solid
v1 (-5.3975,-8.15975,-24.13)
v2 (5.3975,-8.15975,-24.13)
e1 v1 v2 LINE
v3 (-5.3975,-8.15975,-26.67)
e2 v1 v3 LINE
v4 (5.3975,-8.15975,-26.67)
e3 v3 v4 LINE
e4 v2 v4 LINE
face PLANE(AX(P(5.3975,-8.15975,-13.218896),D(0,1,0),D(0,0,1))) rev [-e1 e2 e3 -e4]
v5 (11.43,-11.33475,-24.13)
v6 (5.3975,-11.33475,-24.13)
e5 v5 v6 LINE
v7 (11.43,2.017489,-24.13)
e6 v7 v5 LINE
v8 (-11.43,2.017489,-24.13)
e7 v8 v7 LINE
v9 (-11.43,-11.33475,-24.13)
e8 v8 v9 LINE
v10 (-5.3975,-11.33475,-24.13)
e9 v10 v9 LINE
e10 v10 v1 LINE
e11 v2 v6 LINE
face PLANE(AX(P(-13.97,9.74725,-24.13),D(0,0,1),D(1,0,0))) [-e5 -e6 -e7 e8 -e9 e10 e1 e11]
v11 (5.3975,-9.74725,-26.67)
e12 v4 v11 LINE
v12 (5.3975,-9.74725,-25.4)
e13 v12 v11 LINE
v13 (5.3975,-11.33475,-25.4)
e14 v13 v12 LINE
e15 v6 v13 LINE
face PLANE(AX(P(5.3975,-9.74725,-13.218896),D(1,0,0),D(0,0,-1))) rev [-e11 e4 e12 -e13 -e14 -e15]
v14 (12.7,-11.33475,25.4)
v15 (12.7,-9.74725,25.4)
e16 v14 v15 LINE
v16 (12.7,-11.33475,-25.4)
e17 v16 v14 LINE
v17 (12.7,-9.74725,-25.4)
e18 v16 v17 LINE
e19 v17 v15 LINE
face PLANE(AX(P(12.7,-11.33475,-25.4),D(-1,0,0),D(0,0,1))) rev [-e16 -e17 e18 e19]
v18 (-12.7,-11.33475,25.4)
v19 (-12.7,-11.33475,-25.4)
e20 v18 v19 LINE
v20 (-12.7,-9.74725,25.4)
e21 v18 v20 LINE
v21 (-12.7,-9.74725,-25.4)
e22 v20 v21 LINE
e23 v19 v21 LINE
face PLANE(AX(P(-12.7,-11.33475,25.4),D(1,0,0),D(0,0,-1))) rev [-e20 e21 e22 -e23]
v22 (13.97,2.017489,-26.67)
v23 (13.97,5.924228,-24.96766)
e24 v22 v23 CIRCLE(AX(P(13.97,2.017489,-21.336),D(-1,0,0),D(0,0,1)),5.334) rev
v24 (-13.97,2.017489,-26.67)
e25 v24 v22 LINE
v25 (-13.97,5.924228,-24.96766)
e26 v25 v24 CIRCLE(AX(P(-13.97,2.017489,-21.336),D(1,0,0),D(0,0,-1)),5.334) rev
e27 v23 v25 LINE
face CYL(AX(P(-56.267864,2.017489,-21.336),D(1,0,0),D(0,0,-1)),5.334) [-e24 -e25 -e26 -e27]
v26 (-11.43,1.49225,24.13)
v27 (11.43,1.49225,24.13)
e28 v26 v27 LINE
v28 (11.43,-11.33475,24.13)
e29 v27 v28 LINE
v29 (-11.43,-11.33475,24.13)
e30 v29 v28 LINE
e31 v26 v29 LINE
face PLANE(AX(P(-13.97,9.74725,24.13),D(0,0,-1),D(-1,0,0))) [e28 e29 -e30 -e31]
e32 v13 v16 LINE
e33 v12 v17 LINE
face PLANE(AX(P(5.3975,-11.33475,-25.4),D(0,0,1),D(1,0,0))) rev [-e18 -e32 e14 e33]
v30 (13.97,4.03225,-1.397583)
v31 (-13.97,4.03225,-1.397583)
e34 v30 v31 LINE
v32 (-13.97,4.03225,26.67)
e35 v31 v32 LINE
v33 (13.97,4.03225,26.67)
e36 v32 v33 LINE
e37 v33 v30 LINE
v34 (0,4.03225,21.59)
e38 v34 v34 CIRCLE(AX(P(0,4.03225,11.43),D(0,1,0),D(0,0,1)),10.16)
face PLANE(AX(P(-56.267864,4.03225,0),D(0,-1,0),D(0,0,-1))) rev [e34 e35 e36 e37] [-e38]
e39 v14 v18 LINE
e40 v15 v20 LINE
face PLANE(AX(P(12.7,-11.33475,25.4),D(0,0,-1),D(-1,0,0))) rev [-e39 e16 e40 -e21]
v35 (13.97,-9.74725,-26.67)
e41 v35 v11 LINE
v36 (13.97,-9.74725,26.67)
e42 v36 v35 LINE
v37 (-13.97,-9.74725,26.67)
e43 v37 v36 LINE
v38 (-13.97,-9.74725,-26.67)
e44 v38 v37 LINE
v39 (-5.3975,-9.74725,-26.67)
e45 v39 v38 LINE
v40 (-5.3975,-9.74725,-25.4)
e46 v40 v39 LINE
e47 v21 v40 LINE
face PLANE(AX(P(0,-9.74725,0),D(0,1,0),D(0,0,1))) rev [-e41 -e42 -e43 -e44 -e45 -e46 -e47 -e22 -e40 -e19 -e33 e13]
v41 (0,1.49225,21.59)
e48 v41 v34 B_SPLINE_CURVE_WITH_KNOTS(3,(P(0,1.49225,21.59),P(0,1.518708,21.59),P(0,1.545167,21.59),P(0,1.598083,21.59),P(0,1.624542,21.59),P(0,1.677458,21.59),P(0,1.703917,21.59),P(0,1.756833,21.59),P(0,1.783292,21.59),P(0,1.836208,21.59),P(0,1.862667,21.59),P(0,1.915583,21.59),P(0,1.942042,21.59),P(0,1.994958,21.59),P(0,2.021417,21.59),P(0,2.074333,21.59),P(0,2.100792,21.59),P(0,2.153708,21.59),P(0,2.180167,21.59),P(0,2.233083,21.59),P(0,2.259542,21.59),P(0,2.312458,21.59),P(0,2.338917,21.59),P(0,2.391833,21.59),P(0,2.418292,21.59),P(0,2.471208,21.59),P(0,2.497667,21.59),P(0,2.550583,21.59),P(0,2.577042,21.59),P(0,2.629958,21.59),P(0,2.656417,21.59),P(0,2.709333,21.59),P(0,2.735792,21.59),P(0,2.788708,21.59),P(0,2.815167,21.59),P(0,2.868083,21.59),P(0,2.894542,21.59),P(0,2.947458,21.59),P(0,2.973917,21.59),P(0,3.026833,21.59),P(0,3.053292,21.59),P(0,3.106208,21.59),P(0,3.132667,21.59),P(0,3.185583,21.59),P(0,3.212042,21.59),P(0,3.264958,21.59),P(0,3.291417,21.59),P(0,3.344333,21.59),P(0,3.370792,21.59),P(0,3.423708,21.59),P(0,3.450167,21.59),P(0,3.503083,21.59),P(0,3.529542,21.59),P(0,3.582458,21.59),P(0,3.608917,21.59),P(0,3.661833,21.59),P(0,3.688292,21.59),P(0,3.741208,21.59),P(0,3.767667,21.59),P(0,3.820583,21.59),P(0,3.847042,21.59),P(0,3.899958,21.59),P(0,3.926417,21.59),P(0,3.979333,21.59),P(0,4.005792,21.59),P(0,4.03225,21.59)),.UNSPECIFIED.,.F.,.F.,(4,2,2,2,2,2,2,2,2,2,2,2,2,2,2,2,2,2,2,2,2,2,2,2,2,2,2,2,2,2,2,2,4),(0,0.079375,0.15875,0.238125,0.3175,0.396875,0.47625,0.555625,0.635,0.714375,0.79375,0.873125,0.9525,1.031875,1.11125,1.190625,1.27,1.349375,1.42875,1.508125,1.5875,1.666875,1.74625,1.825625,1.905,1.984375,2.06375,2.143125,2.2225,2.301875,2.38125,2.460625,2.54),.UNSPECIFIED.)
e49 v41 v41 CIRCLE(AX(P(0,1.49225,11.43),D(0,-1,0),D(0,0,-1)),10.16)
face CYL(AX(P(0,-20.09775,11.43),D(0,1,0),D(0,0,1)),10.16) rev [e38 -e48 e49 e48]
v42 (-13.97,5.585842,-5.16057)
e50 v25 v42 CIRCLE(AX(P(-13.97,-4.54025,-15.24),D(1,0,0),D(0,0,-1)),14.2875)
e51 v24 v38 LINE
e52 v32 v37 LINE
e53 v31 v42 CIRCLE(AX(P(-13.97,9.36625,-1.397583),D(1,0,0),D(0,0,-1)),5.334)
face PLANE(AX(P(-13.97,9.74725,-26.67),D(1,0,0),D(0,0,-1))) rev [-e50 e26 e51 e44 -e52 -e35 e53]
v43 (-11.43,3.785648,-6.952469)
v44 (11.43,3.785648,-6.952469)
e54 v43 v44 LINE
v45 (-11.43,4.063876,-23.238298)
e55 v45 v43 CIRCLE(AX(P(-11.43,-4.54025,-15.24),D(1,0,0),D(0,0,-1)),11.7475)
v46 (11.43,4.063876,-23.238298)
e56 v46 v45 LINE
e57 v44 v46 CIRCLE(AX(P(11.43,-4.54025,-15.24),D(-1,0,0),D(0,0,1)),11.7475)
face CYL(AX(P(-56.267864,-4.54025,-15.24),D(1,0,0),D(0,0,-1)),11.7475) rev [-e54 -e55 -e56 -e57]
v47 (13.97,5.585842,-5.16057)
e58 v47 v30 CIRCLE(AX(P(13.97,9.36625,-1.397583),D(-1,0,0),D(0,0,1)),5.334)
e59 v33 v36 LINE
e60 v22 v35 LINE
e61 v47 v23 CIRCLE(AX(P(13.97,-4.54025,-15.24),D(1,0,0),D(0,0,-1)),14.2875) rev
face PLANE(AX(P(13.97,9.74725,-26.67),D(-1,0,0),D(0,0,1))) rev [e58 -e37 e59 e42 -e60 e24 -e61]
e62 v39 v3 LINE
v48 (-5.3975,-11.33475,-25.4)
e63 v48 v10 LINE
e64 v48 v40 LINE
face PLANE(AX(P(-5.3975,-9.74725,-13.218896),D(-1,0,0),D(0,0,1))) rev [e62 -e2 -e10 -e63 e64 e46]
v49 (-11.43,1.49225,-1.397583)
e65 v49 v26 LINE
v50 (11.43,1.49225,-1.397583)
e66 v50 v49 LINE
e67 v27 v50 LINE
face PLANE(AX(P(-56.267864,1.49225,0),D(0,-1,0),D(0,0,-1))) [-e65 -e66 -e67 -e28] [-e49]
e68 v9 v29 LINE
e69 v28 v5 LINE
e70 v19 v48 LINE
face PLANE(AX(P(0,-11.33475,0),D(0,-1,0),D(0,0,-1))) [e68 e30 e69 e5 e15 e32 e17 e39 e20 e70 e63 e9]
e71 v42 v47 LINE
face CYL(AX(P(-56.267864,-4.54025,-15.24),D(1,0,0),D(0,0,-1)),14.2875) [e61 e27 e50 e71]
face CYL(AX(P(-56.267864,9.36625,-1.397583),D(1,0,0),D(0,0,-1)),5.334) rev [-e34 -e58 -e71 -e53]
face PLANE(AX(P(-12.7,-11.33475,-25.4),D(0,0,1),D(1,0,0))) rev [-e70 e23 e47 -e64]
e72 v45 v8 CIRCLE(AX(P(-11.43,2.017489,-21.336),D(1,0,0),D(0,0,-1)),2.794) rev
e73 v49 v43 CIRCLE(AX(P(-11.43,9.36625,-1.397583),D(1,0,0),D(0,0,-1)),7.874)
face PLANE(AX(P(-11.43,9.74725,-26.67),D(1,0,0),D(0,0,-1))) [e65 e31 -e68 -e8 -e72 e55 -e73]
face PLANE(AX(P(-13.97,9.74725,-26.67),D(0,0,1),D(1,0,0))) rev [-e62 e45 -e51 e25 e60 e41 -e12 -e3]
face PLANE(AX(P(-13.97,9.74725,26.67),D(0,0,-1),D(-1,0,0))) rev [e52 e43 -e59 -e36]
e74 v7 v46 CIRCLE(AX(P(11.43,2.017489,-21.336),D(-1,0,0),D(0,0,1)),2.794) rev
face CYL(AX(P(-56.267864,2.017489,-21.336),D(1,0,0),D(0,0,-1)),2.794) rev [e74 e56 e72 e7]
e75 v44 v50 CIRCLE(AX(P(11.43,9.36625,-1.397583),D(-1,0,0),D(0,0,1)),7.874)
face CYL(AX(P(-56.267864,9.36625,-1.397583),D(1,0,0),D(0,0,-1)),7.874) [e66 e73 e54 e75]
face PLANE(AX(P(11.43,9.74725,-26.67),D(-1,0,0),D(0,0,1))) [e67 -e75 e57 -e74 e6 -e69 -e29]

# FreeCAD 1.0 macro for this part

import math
import FreeCAD as App
import Part
import Sketcher
Q = App.Units.Quantity


def edges_at(feature, points):
    """Names of the edges that pass closest to the given points."""
    edges = feature.Shape.Edges
    near = lambda p: min(range(len(edges)), key=lambda i: edges[i].distToShape(Part.Vertex(*p))[0])
    return sorted({f"Edge{near(p) + 1}" for p in points})


def faces_at(feature, points):
    """Names of the faces that lie closest to the given points."""
    faces = feature.Shape.Faces
    near = lambda p: min(range(len(faces)), key=lambda i: faces[i].distToShape(Part.Vertex(*p))[0])
    return sorted({f"Face{near(p) + 1}" for p in points})

doc = App.newDocument("Part")
params = doc.addObject("Spreadsheet::Sheet", "Params")
for row, (alias, value) in enumerate([
    ("sketch1_width", "1.1 in"),
    ("sketch1_height", "2.1 in"),
    ("pad1_length", "0.7675 in"),
    ("sketch2_height", "1.2 in"),
    ("sketch2_radius", "0.5625 in"),
    ("sketch2_height2", "1.65 in"),
    ("pocket1_length", "1.1 in"),
    ("fillet_radius", "0.21 in"),
    ("fillet2_radius", "0.21 in"),
    ("thickness_wall", "0.1 in"),
    ("sketch3_diameter", "0.8 in"),
    ("pocket2_length", "0.95 in"),
    ("sketch4_width", "0.425 in"),
    ("sketch4_height", "0.0625 in"),
    ("pocket3_length", "0.1 in"),
    ("sketch5_width", "1 in"),
    ("sketch5_height", "2 in"),
    ("sketch5_width2", "0.9 in"),
    ("sketch5_height2", "1.9 in"),
    ("pad2_length", "0.0625 in"),
], start=1):
    params.set(f"A{row}", alias)
    params.set(f"B{row}", "=" + value)
    params.setAlias(f"B{row}", alias)

body = doc.addObject("PartDesign::Body", "Body")

# Sketch on XZ plane
sketch1 = body.newObject("Sketcher::SketchObject", "Sketch")
sketch1.AttachmentSupport = (doc.getObject("XZ_Plane"), [""])
sketch1.MapMode = "FlatFace"
sketch1.addGeometry(Part.LineSegment(App.Vector(-14, -27, 0), App.Vector(-14, 27, 0)), False)
sketch1.addGeometry(Part.LineSegment(App.Vector(-14, 27, 0), App.Vector(14, 27, 0)), False)
sketch1.addGeometry(Part.LineSegment(App.Vector(14, 27, 0), App.Vector(14, -27, 0)), False)
sketch1.addGeometry(Part.LineSegment(App.Vector(14, -27, 0), App.Vector(-14, -27, 0)), False)
sketch1.addConstraint(Sketcher.Constraint("Coincident", 0, 2, 1, 1))
sketch1.addConstraint(Sketcher.Constraint("Coincident", 1, 2, 2, 1))
sketch1.addConstraint(Sketcher.Constraint("Coincident", 2, 2, 3, 1))
sketch1.addConstraint(Sketcher.Constraint("Coincident", 3, 2, 0, 1))
sketch1.addConstraint(Sketcher.Constraint("Vertical", 0))
sketch1.addConstraint(Sketcher.Constraint("Horizontal", 1))
sketch1.addConstraint(Sketcher.Constraint("Vertical", 2))
sketch1.addConstraint(Sketcher.Constraint("Horizontal", 3))
sketch1.addConstraint(Sketcher.Constraint("Symmetric", 0, 2, 2, 2, -1, 1))
sketch1.addConstraint(Sketcher.Constraint("DistanceX", 1, 1, 1, 2, Q("1.1 in")))
sketch1.addConstraint(Sketcher.Constraint("DistanceY", 0, 1, 0, 2, Q("2.1 in")))
sketch1.setExpression("Constraints[9]", "Params.sketch1_width")
sketch1.setExpression("Constraints[10]", "Params.sketch1_height")
pad1 = body.newObject("PartDesign::Pad", "Pad")
pad1.Profile = sketch1
pad1.setExpression("Length", "Params.pad1_length")
pad1.Midplane = True

# Sketch on YZ plane
sketch2 = body.newObject("Sketcher::SketchObject", "Sketch001")
sketch2.AttachmentSupport = (doc.getObject("YZ_Plane"), [""])
sketch2.MapMode = "FlatFace"
sketch2.AttachmentOffset = App.Placement(App.Vector(0, 0, 0.55 * 25.4), App.Rotation())
sketch2.addGeometry(Part.LineSegment(App.Vector(10, 27, 0), App.Vector(4, 27, 0)), False)
sketch2.addGeometry(Part.LineSegment(App.Vector(4, 27, 0), App.Vector(4, -4, 0)), False)
sketch2.addGeometry(Part.ArcOfCircle(Part.Circle(App.Vector(-5, -15, 0), App.Vector(0, 0, 1), 14), math.radians(0), math.radians(53)), False)
sketch2.addGeometry(Part.LineSegment(App.Vector(10, -15, 0), App.Vector(10, 27, 0)), False)
sketch2.addGeometry(Part.LineSegment(App.Vector(10, -27, 0), App.Vector(10, -15, 0)), False)
sketch2.addGeometry(Part.ArcOfCircle(Part.Circle(App.Vector(-5, -15, 0), App.Vector(0, 0, 1), 14), math.radians(-53), math.radians(0)), False)
sketch2.addGeometry(Part.LineSegment(App.Vector(4, -27, 0), App.Vector(10, -27, 0)), False)
sketch2.addConstraint(Sketcher.Constraint("Coincident", 0, 2, 1, 1))
sketch2.addConstraint(Sketcher.Constraint("Coincident", 1, 2, 2, 2))
sketch2.addConstraint(Sketcher.Constraint("Tangent", 2, 1, 3, 1))
sketch2.addConstraint(Sketcher.Constraint("Coincident", 3, 2, 0, 1))
sketch2.addConstraint(Sketcher.Constraint("Tangent", 4, 2, 5, 2))
sketch2.addConstraint(Sketcher.Constraint("Coincident", 5, 1, 6, 1))
sketch2.addConstraint(Sketcher.Constraint("Coincident", 6, 2, 4, 1))
sketch2.addConstraint(Sketcher.Constraint("Horizontal", 0))
sketch2.addConstraint(Sketcher.Constraint("Vertical", 1))
sketch2.addConstraint(Sketcher.Constraint("Vertical", 3))
sketch2.addConstraint(Sketcher.Constraint("Vertical", 4))
sketch2.addConstraint(Sketcher.Constraint("Horizontal", 6))
sketch2.addConstraint(Sketcher.Constraint("Coincident", 5, 3, 2, 3))
sketch2.addConstraint(Sketcher.Constraint("Equal", 2, 5))
sketch2.addConstraint(Sketcher.Constraint("Symmetric", 0, 2, 5, 1, -1))
sketch2.addConstraint(Sketcher.Constraint("DistanceY", 1, 2, 1, 1, Q("1.2 in")))
sketch2.addConstraint(Sketcher.Constraint("Radius", 2, Q("0.5625 in")))
sketch2.addConstraint(Sketcher.Constraint("DistanceY", 3, 1, 3, 2, Q("1.65 in")))
sketch2.addConstraint(Sketcher.Constraint("DistanceX", 2, 3, -1, 1, 4.54025))
sketch2.setExpression("Constraints[15]", "Params.sketch2_height")
sketch2.setExpression("Constraints[16]", "Params.sketch2_radius")
sketch2.setExpression("Constraints[17]", "Params.sketch2_height2")
pocket1 = body.newObject("PartDesign::Pocket", "Pocket")
pocket1.Profile = sketch2
pocket1.setExpression("Length", "Params.pocket1_length")
doc.recompute()

fillet = body.newObject("PartDesign::Fillet", "Fillet")
fillet.Base = (pocket1, edges_at(pocket1, [(0, 4.032, -3.81)]))
fillet.setExpression("Radius", "Params.fillet_radius")
doc.recompute()

fillet2 = body.newObject("PartDesign::Fillet", "Fillet001")
fillet2.Base = (fillet, edges_at(fillet, [(0, 4.032, -26.67)]))
fillet2.setExpression("Radius", "Params.fillet2_radius")
doc.recompute()

thickness = body.newObject("PartDesign::Thickness", "Thickness")
thickness.Base = (fillet2, faces_at(fillet2, [(0, -9.747, 0)]))
thickness.setExpression("Value", "Params.thickness_wall")
thickness.Reversed = True
thickness.Join = "Intersection"

# Sketch on XZ plane
sketch3 = body.newObject("Sketcher::SketchObject", "Sketch002")
sketch3.AttachmentSupport = (doc.getObject("XZ_Plane"), [""])
sketch3.MapMode = "FlatFace"
sketch3.AttachmentOffset = App.Placement(App.Vector(0, 0, -4.03225), App.Rotation())
sketch3.addGeometry(Part.Circle(App.Vector(0, 11, 0), App.Vector(0, 0, 1), 10), False)
sketch3.addConstraint(Sketcher.Constraint("PointOnObject", 0, 3, -2))
sketch3.addConstraint(Sketcher.Constraint("Diameter", 0, Q("0.8 in")))
sketch3.addConstraint(Sketcher.Constraint("DistanceY", -1, 1, 0, 3, Q("0.45 in")))
sketch3.setExpression("Constraints[1]", "Params.sketch3_diameter")
pocket2 = body.newObject("PartDesign::Pocket", "Pocket001")
pocket2.Profile = sketch3
pocket2.setExpression("Length", "Params.pocket2_length")
pocket2.Reversed = True

# Sketch on XY plane
sketch4 = body.newObject("Sketcher::SketchObject", "Sketch003")
sketch4.AttachmentSupport = (doc.getObject("XY_Plane"), [""])
sketch4.MapMode = "FlatFace"
sketch4.AttachmentOffset = App.Placement(App.Vector(0, 0, -1.05 * 25.4), App.Rotation())
sketch4.addGeometry(Part.LineSegment(App.Vector(5.4, -8.2, 0), App.Vector(5.4, -9.7, 0)), False)
sketch4.addGeometry(Part.LineSegment(App.Vector(5.4, -9.7, 0), App.Vector(-5.4, -9.7, 0)), False)
sketch4.addGeometry(Part.LineSegment(App.Vector(-5.4, -9.7, 0), App.Vector(-5.4, -8.2, 0)), False)
sketch4.addGeometry(Part.LineSegment(App.Vector(-5.4, -8.2, 0), App.Vector(5.4, -8.2, 0)), False)
sketch4.addConstraint(Sketcher.Constraint("Coincident", 0, 2, 1, 1))
sketch4.addConstraint(Sketcher.Constraint("Coincident", 1, 2, 2, 1))
sketch4.addConstraint(Sketcher.Constraint("Coincident", 2, 2, 3, 1))
sketch4.addConstraint(Sketcher.Constraint("Coincident", 3, 2, 0, 1))
sketch4.addConstraint(Sketcher.Constraint("Vertical", 0))
sketch4.addConstraint(Sketcher.Constraint("Horizontal", 1))
sketch4.addConstraint(Sketcher.Constraint("Vertical", 2))
sketch4.addConstraint(Sketcher.Constraint("Horizontal", 3))
sketch4.addConstraint(Sketcher.Constraint("DistanceX", 1, 2, 1, 1, Q("0.425 in")))
sketch4.addConstraint(Sketcher.Constraint("DistanceY", 0, 2, 0, 1, Q("0.0625 in")))
sketch4.addConstraint(Sketcher.Constraint("DistanceX", -1, 1, 0, 2, Q("0.2125 in")))
sketch4.addConstraint(Sketcher.Constraint("DistanceY", 0, 2, -1, 1, 9.74725))
sketch4.setExpression("Constraints[8]", "Params.sketch4_width")
sketch4.setExpression("Constraints[9]", "Params.sketch4_height")
pocket3 = body.newObject("PartDesign::Pocket", "Pocket002")
pocket3.Profile = sketch4
pocket3.setExpression("Length", "Params.pocket3_length")
pocket3.Reversed = True

# Sketch on XZ plane
sketch5 = body.newObject("Sketcher::SketchObject", "Sketch004")
sketch5.AttachmentSupport = (doc.getObject("XZ_Plane"), [""])
sketch5.MapMode = "FlatFace"
sketch5.AttachmentOffset = App.Placement(App.Vector(0, 0, 9.74725), App.Rotation())
sketch5.addGeometry(Part.LineSegment(App.Vector(-5.4, -24.1, 0), App.Vector(-11.4, -24.1, 0)), False)
sketch5.addGeometry(Part.LineSegment(App.Vector(-11.4, -24.1, 0), App.Vector(-11.4, 24.1, 0)), False)
sketch5.addGeometry(Part.LineSegment(App.Vector(-11.4, 24.1, 0), App.Vector(11.4, 24.1, 0)), False)
sketch5.addGeometry(Part.LineSegment(App.Vector(11.4, 24.1, 0), App.Vector(11.4, -24.1, 0)), False)
sketch5.addGeometry(Part.LineSegment(App.Vector(11.4, -24.1, 0), App.Vector(5.4, -24.1, 0)), False)
sketch5.addGeometry(Part.LineSegment(App.Vector(5.4, -24.1, 0), App.Vector(5.4, -25.4, 0)), False)
sketch5.addGeometry(Part.LineSegment(App.Vector(5.4, -25.4, 0), App.Vector(12.7, -25.4, 0)), False)
sketch5.addGeometry(Part.LineSegment(App.Vector(12.7, -25.4, 0), App.Vector(12.7, 25.4, 0)), False)
sketch5.addGeometry(Part.LineSegment(App.Vector(12.7, 25.4, 0), App.Vector(-12.7, 25.4, 0)), False)
sketch5.addGeometry(Part.LineSegment(App.Vector(-12.7, 25.4, 0), App.Vector(-12.7, -25.4, 0)), False)
sketch5.addGeometry(Part.LineSegment(App.Vector(-12.7, -25.4, 0), App.Vector(-5.4, -25.4, 0)), False)
sketch5.addGeometry(Part.LineSegment(App.Vector(-5.4, -25.4, 0), App.Vector(-5.4, -24.1, 0)), False)
sketch5.addConstraint(Sketcher.Constraint("Coincident", 0, 2, 1, 1))
sketch5.addConstraint(Sketcher.Constraint("Coincident", 1, 2, 2, 1))
sketch5.addConstraint(Sketcher.Constraint("Coincident", 2, 2, 3, 1))
sketch5.addConstraint(Sketcher.Constraint("Coincident", 3, 2, 4, 1))
sketch5.addConstraint(Sketcher.Constraint("Coincident", 4, 2, 5, 1))
sketch5.addConstraint(Sketcher.Constraint("Coincident", 5, 2, 6, 1))
sketch5.addConstraint(Sketcher.Constraint("Coincident", 6, 2, 7, 1))
sketch5.addConstraint(Sketcher.Constraint("Coincident", 7, 2, 8, 1))
sketch5.addConstraint(Sketcher.Constraint("Coincident", 8, 2, 9, 1))
sketch5.addConstraint(Sketcher.Constraint("Coincident", 9, 2, 10, 1))
sketch5.addConstraint(Sketcher.Constraint("Coincident", 10, 2, 11, 1))
sketch5.addConstraint(Sketcher.Constraint("Coincident", 11, 2, 0, 1))
sketch5.addConstraint(Sketcher.Constraint("Horizontal", 0))
sketch5.addConstraint(Sketcher.Constraint("Vertical", 1))
sketch5.addConstraint(Sketcher.Constraint("Horizontal", 2))
sketch5.addConstraint(Sketcher.Constraint("Vertical", 3))
sketch5.addConstraint(Sketcher.Constraint("Horizontal", 4))
sketch5.addConstraint(Sketcher.Constraint("Vertical", 5))
sketch5.addConstraint(Sketcher.Constraint("Horizontal", 6))
sketch5.addConstraint(Sketcher.Constraint("Vertical", 7))
sketch5.addConstraint(Sketcher.Constraint("Horizontal", 8))
sketch5.addConstraint(Sketcher.Constraint("Vertical", 9))
sketch5.addConstraint(Sketcher.Constraint("Horizontal", 10))
sketch5.addConstraint(Sketcher.Constraint("Vertical", 11))
sketch5.addConstraint(Sketcher.Constraint("Symmetric", 0, 2, 2, 2, -1, 1))
sketch5.addConstraint(Sketcher.Constraint("Symmetric", 6, 2, 8, 2, -1, 1))
sketch5.addConstraint(Sketcher.Constraint("Symmetric", 5, 2, 10, 2, -2))
sketch5.addConstraint(Sketcher.Constraint("Horizontal", 0, 2, 3, 2))
sketch5.addConstraint(Sketcher.Constraint("DistanceX", 8, 2, 8, 1, Q("1 in")))
sketch5.addConstraint(Sketcher.Constraint("DistanceY", 7, 1, 7, 2, Q("2 in")))
sketch5.addConstraint(Sketcher.Constraint("DistanceX", 2, 1, 2, 2, Q("0.9 in")))
sketch5.addConstraint(Sketcher.Constraint("DistanceY", 1, 1, 1, 2, Q("1.9 in")))
sketch5.addConstraint(Sketcher.Constraint("DistanceX", 0, 2, 0, 1, Q("0.2375 in")))
sketch5.setExpression("Constraints[28]", "Params.sketch5_width")
sketch5.setExpression("Constraints[29]", "Params.sketch5_height")
sketch5.setExpression("Constraints[30]", "Params.sketch5_width2")
sketch5.setExpression("Constraints[31]", "Params.sketch5_height2")
pad2 = body.newObject("PartDesign::Pad", "Pad001")
pad2.Profile = sketch5
pad2.setExpression("Length", "Params.pad2_length")

doc.recompute()
